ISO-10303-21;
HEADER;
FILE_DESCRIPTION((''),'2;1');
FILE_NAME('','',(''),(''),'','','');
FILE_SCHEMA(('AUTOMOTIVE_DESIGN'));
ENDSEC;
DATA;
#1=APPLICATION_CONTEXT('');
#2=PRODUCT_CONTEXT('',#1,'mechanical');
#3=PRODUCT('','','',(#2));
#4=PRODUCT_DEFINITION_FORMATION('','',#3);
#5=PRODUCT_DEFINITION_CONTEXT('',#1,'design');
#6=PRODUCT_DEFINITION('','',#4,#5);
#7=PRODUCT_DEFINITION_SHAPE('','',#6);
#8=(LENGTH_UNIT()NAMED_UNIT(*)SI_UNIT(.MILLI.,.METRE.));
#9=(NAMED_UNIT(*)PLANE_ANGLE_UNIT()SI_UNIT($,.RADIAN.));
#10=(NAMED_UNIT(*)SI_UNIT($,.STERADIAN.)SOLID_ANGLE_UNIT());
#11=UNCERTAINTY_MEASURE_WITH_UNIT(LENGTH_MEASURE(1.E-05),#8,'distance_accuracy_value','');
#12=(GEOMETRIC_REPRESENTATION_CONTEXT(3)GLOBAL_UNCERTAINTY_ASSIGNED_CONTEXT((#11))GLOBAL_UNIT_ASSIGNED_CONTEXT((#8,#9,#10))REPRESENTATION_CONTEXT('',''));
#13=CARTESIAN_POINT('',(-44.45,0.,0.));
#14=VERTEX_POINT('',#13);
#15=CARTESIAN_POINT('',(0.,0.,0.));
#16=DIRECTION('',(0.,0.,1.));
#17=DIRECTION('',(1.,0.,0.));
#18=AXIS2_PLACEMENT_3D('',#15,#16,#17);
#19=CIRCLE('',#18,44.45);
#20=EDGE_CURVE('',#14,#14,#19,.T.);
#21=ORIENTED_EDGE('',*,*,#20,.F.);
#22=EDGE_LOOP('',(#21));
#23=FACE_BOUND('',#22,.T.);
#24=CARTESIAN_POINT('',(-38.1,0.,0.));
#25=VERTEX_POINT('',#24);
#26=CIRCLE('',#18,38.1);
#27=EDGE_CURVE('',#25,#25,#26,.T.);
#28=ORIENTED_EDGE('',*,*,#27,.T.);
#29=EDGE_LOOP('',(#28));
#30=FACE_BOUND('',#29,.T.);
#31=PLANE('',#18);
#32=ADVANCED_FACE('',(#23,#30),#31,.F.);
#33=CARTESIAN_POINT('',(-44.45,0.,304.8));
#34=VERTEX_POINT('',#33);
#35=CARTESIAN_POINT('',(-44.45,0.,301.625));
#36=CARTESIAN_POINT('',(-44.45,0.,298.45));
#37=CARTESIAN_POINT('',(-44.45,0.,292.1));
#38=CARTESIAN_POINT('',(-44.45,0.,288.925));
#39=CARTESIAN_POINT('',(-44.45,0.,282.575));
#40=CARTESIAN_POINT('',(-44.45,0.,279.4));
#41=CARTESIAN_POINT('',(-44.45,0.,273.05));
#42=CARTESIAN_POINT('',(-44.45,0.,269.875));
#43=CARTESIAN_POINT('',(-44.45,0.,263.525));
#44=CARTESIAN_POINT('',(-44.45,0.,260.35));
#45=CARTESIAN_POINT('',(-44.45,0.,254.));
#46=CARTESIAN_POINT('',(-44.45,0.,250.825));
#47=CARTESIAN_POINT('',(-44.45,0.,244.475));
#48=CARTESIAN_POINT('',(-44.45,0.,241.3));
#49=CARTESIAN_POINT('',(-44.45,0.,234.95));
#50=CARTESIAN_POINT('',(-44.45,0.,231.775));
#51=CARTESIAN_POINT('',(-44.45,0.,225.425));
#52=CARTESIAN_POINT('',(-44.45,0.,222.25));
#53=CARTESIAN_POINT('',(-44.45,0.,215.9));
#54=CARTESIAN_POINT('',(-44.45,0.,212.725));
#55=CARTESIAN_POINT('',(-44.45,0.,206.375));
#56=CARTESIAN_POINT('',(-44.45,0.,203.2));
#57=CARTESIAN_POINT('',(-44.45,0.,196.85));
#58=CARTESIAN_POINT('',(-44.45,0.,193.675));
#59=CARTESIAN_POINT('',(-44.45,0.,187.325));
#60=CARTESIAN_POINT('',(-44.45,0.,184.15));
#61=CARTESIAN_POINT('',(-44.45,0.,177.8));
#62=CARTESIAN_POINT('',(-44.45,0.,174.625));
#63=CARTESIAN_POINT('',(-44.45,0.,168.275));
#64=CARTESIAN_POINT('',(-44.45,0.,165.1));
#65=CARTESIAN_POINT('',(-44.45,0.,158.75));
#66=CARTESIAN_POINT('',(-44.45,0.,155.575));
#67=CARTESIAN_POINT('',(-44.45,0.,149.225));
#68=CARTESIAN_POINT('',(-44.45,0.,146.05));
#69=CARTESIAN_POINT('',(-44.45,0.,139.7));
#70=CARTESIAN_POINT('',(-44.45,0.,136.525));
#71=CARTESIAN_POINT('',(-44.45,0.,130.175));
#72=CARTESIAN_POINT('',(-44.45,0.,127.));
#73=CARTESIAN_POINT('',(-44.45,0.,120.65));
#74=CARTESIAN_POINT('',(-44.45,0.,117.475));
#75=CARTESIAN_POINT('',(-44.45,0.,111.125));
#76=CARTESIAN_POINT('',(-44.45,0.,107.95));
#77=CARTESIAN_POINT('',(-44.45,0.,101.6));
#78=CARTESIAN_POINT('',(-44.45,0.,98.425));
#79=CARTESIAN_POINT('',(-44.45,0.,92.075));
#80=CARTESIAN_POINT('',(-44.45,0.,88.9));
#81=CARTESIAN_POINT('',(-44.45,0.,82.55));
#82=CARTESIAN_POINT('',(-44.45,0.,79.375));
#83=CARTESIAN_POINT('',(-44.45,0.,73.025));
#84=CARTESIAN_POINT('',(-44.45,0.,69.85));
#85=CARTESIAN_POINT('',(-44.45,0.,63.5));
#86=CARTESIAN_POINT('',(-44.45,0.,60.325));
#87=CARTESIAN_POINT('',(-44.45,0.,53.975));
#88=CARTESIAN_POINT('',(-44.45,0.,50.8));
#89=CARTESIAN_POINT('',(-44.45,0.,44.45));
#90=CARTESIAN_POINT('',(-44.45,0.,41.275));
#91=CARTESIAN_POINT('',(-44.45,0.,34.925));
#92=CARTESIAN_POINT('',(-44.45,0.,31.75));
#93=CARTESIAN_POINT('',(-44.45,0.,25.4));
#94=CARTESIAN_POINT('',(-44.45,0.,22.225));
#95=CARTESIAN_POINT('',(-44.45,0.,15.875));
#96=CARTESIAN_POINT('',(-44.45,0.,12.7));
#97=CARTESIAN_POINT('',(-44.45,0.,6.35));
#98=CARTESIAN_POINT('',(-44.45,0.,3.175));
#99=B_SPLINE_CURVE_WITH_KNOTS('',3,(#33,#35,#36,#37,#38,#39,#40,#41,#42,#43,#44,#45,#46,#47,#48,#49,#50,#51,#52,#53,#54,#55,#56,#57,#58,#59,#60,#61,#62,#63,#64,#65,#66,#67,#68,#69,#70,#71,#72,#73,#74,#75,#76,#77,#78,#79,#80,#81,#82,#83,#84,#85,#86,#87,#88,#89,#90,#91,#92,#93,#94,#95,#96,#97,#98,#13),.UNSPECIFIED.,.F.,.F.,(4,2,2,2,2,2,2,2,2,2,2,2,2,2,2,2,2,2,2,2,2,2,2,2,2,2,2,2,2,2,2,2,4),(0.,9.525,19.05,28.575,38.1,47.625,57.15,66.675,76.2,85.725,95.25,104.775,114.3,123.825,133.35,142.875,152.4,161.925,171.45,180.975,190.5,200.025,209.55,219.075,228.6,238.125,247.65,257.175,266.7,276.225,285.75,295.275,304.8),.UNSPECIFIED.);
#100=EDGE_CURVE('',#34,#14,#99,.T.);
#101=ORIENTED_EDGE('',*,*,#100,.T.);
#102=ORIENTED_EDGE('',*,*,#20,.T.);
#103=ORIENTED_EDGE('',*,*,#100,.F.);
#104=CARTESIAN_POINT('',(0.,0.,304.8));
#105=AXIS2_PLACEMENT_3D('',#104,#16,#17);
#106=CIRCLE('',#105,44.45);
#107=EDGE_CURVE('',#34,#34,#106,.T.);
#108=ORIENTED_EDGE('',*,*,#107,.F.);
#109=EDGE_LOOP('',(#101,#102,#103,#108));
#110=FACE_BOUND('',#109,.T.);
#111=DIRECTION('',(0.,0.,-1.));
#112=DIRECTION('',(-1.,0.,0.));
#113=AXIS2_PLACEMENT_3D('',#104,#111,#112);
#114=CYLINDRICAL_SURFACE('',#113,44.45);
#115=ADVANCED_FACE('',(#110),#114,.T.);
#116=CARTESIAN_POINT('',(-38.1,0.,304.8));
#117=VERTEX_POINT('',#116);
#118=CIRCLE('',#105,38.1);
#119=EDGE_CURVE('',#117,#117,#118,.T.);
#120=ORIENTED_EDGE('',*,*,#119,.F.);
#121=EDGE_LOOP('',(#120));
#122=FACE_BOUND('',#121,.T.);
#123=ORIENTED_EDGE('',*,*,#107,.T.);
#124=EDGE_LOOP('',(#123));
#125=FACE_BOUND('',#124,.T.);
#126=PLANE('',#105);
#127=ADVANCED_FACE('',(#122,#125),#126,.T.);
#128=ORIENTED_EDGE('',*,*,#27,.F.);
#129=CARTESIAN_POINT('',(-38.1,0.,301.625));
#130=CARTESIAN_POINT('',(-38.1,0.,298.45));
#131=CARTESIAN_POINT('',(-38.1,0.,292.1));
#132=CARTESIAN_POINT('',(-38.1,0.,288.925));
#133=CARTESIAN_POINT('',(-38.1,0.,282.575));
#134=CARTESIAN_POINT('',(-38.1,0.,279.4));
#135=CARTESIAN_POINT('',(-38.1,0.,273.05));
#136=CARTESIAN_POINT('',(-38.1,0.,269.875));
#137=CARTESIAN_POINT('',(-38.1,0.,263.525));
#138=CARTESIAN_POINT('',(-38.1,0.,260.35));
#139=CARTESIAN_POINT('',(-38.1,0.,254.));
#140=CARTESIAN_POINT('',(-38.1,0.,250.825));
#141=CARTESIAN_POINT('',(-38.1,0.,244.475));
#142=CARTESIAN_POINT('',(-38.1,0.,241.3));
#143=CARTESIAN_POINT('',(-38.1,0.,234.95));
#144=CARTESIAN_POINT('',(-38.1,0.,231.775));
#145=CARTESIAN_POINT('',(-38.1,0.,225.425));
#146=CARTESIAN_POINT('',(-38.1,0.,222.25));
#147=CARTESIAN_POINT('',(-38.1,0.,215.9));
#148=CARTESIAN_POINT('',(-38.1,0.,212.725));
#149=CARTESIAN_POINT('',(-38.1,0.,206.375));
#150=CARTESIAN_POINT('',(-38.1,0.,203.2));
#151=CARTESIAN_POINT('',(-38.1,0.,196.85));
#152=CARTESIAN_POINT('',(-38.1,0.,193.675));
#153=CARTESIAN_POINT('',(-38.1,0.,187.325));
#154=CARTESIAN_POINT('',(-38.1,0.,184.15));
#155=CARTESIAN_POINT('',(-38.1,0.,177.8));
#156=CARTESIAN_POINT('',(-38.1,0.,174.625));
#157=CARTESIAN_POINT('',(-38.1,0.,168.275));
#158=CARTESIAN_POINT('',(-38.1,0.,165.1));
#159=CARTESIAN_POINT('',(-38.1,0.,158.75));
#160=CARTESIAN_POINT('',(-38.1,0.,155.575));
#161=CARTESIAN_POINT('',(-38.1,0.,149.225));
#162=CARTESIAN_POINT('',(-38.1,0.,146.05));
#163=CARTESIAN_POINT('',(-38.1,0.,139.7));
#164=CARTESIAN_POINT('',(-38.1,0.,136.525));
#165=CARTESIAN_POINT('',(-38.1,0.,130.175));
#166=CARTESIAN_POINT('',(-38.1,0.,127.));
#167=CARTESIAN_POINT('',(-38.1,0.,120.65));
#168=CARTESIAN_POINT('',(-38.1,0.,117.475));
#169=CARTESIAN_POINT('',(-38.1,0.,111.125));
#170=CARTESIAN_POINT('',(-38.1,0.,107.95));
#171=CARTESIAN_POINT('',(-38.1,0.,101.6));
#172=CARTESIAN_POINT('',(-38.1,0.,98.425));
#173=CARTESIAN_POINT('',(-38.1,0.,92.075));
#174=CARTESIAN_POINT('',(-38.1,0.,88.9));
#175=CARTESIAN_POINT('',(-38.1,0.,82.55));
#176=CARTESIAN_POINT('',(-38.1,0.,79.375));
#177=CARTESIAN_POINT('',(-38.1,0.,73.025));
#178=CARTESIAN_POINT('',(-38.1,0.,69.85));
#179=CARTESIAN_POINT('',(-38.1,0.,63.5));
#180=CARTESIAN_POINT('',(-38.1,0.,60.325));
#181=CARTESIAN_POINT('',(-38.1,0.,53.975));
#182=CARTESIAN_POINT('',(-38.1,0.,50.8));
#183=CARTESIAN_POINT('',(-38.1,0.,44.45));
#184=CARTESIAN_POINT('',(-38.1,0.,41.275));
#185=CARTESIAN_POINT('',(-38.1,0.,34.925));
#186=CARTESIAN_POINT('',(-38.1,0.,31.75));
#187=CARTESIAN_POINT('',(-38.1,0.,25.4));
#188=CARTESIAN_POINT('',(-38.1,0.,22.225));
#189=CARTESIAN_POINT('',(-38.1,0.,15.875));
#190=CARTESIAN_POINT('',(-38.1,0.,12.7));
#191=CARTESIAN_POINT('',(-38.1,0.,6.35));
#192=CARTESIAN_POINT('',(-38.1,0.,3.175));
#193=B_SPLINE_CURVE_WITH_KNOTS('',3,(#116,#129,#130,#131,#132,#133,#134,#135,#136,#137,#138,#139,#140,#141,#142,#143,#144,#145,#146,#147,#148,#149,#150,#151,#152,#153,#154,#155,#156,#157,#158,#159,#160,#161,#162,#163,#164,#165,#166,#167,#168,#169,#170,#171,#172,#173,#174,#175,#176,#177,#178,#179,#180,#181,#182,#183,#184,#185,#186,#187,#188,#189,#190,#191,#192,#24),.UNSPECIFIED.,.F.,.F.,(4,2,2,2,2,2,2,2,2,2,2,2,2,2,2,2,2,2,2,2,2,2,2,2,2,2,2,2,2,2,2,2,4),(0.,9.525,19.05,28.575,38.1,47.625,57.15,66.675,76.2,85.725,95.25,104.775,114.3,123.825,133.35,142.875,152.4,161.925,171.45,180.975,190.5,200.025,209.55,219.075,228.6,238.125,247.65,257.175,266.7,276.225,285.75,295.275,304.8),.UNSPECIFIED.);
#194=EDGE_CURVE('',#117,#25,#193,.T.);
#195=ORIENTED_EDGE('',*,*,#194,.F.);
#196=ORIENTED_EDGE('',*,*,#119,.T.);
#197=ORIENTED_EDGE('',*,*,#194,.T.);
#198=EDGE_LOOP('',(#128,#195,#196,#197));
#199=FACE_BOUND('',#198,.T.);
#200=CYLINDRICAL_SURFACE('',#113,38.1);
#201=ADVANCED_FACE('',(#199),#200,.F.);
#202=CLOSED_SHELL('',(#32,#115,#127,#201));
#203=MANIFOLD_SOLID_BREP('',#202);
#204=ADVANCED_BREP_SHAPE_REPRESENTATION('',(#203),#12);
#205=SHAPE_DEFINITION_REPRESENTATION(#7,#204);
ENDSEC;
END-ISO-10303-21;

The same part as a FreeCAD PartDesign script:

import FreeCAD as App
import Part
import Sketcher

V = App.Vector
Q = App.Units.Quantity

doc = App.newDocument("Part")
params = doc.addObject("Spreadsheet::Sheet", "Params")
for row, (alias, value) in enumerate([
    ("sketch1_diameter", "3 in"),
    ("sketch1_diameter2", "3.5 in"),
    ("pad1_length", "12 in"),
], start=1):
    params.set(f"A{row}", alias)
    params.set(f"B{row}", "=" + value)
    params.setAlias(f"B{row}", alias)

body = doc.addObject("PartDesign::Body", "Body")

# Sketch on XY plane
sketch1 = doc.addObject("Sketcher::SketchObject", "Sketch")
body.addObject(sketch1)
sketch1.AttachmentSupport = (doc.XY_Plane, [""])
sketch1.MapMode = "FlatFace"
sketch1.addGeometry(Part.Circle(V(0, 0, 0), V(0, 0, 1), 44), False)
sketch1.addGeometry(Part.Circle(V(0, 0, 0), V(0, 0, 1), 38), False)
sketch1.addConstraint(Sketcher.Constraint("Coincident", 0, 3, -1, 1))
sketch1.addConstraint(Sketcher.Constraint("Coincident", 1, 3, -1, 1))
sketch1.addConstraint(Sketcher.Constraint("Diameter", 1, Q("3 in")))
sketch1.addConstraint(Sketcher.Constraint("Diameter", 0, Q("3.5 in")))
sketch1.setExpression("Constraints[2]", "Params.sketch1_diameter")
sketch1.setExpression("Constraints[3]", "Params.sketch1_diameter2")
pad1 = doc.addObject("PartDesign::Pad", "Pad")
body.addObject(pad1)
pad1.Profile = sketch1
pad1.setExpression("Length", "Params.pad1_length")

doc.recompute()
